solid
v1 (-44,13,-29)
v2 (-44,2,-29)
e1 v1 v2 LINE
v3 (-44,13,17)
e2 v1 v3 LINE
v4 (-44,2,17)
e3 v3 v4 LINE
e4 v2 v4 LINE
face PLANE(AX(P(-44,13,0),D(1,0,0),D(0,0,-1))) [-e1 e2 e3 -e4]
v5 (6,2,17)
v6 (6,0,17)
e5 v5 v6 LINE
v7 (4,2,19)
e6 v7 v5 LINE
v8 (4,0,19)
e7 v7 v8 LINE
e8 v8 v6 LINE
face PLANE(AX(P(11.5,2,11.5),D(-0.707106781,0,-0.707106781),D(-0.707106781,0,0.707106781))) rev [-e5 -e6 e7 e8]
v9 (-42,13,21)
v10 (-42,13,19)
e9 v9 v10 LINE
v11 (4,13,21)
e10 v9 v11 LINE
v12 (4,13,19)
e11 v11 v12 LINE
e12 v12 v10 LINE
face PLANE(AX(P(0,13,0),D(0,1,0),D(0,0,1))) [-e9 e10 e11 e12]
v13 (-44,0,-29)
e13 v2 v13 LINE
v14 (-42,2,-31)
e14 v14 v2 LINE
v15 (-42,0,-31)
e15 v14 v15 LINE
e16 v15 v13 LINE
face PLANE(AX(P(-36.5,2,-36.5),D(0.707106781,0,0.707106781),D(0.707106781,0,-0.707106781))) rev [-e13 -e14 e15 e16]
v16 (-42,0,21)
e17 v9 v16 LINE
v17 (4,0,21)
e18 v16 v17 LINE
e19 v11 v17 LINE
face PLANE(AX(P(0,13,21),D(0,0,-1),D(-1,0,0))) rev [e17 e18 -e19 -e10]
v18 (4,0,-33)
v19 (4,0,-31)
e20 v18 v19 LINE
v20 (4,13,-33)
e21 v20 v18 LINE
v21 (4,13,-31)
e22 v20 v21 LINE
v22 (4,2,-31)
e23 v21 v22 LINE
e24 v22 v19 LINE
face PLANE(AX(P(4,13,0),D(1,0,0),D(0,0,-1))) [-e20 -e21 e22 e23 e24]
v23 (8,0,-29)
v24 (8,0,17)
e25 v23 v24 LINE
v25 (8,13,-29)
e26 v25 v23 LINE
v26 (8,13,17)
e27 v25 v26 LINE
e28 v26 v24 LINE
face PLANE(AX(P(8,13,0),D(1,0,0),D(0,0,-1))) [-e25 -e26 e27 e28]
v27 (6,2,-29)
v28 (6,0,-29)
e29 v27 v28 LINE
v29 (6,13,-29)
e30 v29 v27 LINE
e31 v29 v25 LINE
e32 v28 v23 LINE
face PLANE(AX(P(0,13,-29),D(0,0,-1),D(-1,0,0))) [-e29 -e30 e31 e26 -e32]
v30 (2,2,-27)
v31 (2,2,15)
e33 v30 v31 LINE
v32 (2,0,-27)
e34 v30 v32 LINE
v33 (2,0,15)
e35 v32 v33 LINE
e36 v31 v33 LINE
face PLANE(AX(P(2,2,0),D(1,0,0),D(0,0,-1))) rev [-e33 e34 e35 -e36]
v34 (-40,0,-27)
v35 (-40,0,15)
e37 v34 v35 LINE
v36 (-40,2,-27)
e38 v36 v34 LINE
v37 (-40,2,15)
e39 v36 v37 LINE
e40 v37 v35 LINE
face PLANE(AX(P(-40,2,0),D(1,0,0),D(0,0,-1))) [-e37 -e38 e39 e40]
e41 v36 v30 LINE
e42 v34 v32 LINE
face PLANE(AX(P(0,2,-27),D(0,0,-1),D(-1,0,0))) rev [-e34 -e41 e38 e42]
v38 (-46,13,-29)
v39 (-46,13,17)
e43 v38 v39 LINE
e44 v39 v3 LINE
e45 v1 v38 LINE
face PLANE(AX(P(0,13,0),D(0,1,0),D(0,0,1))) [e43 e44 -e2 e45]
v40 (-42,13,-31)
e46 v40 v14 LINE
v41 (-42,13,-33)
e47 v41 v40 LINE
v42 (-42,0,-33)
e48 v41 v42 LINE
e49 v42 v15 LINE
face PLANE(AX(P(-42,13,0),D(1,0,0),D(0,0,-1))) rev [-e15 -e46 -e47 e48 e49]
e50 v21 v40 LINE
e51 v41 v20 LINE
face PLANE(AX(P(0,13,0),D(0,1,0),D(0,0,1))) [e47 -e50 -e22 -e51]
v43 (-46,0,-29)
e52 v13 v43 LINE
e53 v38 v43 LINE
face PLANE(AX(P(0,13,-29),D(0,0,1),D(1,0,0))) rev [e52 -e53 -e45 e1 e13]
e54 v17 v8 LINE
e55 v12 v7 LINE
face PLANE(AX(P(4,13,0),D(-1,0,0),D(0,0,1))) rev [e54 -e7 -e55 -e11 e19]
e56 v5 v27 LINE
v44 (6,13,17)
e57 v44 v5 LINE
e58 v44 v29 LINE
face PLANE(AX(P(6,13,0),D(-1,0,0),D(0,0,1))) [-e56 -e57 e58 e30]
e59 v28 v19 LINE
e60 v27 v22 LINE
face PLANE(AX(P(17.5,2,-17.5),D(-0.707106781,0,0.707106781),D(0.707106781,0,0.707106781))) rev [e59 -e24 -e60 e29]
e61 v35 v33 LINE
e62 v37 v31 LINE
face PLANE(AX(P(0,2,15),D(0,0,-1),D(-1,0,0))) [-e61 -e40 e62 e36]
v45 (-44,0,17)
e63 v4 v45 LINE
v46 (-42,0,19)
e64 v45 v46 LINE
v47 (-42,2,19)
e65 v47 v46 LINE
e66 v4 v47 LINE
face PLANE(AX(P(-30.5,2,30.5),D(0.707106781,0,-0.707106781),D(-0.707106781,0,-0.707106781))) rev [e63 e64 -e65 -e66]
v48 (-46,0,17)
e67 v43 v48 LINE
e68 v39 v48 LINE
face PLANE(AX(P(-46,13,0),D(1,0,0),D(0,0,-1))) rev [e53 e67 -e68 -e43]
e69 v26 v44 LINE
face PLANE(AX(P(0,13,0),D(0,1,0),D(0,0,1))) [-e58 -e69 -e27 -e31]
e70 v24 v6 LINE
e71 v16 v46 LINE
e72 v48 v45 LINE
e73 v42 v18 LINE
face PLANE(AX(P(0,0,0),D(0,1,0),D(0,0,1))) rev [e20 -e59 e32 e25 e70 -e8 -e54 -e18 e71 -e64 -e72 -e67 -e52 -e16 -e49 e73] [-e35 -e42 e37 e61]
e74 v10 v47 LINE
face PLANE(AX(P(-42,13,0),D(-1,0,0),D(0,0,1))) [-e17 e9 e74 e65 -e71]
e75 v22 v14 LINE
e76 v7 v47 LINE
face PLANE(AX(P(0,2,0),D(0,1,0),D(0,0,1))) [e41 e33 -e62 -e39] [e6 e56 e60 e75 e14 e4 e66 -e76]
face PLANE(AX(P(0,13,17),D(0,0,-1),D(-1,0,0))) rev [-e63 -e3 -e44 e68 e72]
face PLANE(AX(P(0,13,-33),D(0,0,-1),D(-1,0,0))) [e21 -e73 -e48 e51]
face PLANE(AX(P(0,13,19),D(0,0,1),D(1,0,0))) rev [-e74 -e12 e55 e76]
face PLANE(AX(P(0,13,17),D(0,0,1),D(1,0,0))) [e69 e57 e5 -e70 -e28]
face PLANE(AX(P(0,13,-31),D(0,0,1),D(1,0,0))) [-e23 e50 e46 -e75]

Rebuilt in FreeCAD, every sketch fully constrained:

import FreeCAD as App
import Part
import Sketcher
Q = App.Units.Quantity


def add_polygon(sketch, points):
    """Adds a closed chain of lines whose ends are joined by coincident constraints."""
    first, n = sketch.GeometryCount, len(points)
    for a, b in zip(points, points[1:] + points[:1]):
        sketch.addGeometry(Part.LineSegment(App.Vector(*a, 0), App.Vector(*b, 0)), False)
    for i in range(n):
        sketch.addConstraint(Sketcher.Constraint("Coincident", first + i, 2, first + (i + 1) % n, 1))

doc = App.newDocument("Part")
params = doc.addObject("Spreadsheet::Sheet", "Params")
for row, (alias, value) in enumerate([
    ("sketch1_width", "46 mm"),
    ("sketch1_width2", "42 mm"),
    ("pad1_length", "2 mm"),
    ("sketch2_width", "46 mm"),
    ("sketch2_width2", "2 mm"),
    ("pad2_length", "13 mm"),
], start=1):
    params.set(f"A{row}", alias)
    params.set(f"B{row}", "=" + value)
    params.setAlias(f"B{row}", alias)

body = doc.addObject("PartDesign::Body", "Body")

# Sketch on XZ plane
sketch1 = body.newObject("Sketcher::SketchObject", "Sketch")
sketch1.AttachmentSupport = (doc.getObject("XZ_Plane"), [""])
sketch1.MapMode = "FlatFace"
add_polygon(sketch1, [(-42, -31), (-44, -29), (-44, 17), (-42, 19), (4, 19), (6, 17), (6, -29), (4, -31)])  # lines 0-7
add_polygon(sketch1, [(2, 15), (-40, 15), (-40, -27), (2, -27)])  # lines 8-11
sketch1.addConstraint([
    Sketcher.Constraint("Vertical", 1),
    Sketcher.Constraint("Horizontal", 3),
    Sketcher.Constraint("Vertical", 5),
    Sketcher.Constraint("Horizontal", 7),
    Sketcher.Constraint("Horizontal", 8),
    Sketcher.Constraint("Vertical", 9),
    Sketcher.Constraint("Horizontal", 10),
    Sketcher.Constraint("Vertical", 11),
    Sketcher.Constraint("Perpendicular", 0, 2),
    Sketcher.Constraint("Perpendicular", 2, 4),
    Sketcher.Constraint("Perpendicular", 4, 6),
    Sketcher.Constraint("Horizontal", 1, 2, 4, 2),
    Sketcher.Constraint("Horizontal", 0, 2, 5, 2),
    Sketcher.Constraint("Vertical", 3, 2, 6, 2),
    Sketcher.Constraint("Vertical", 2, 2, 7, 2),
    Sketcher.Constraint("Equal", 7, 1),
    Sketcher.Constraint("Equal", 10, 9),
    Sketcher.Constraint("DistanceX", 3, 1, 3, 2, Q("46 mm")),
    Sketcher.Constraint("DistanceX", 8, 2, 8, 1, Q("42 mm")),
    Sketcher.Constraint("DistanceX", 0, 2, -1, 1, Q("44 mm")),
    Sketcher.Constraint("DistanceY", 0, 2, -1, 1, Q("29 mm")),
    Sketcher.Constraint("DistanceX", 2, 2, -1, 1, Q("42 mm")),
    Sketcher.Constraint("DistanceX", 8, 2, -1, 1, Q("40 mm")),
    Sketcher.Constraint("DistanceY", -1, 1, 8, 2, Q("15 mm")),
])
sketch1.setExpression("Constraints[29]", "Params.sketch1_width")
sketch1.setExpression("Constraints[30]", "Params.sketch1_width2")
pad1 = body.newObject("PartDesign::Pad", "Pad")
pad1.Profile = sketch1
pad1.setExpression("Length", "Params.pad1_length")
pad1.Reversed = True

# Sketch on XZ plane
sketch2 = body.newObject("Sketcher::SketchObject", "Sketch001")
sketch2.AttachmentSupport = (doc.getObject("XZ_Plane"), [""])
sketch2.MapMode = "FlatFace"
add_polygon(sketch2, [(-42, 19), (-42, 21), (4, 21), (4, 19)])  # lines 0-3
add_polygon(sketch2, [(-42, -33), (-42, -31), (4, -31), (4, -33)])  # lines 4-7
add_polygon(sketch2, [(6, -29), (6, 17), (8, 17), (8, -29)])  # lines 8-11
add_polygon(sketch2, [(-46, -29), (-46, 17), (-44, 17), (-44, -29)])  # lines 12-15
sketch2.addConstraint([
    Sketcher.Constraint("Vertical", 0),
    Sketcher.Constraint("Horizontal", 1),
    Sketcher.Constraint("Vertical", 2),
    Sketcher.Constraint("Horizontal", 3),
    Sketcher.Constraint("Vertical", 4),
    Sketcher.Constraint("Horizontal", 5),
    Sketcher.Constraint("Vertical", 6),
    Sketcher.Constraint("Horizontal", 7),
    Sketcher.Constraint("Vertical", 8),
    Sketcher.Constraint("Horizontal", 9),
    Sketcher.Constraint("Vertical", 10),
    Sketcher.Constraint("Horizontal", 11),
    Sketcher.Constraint("Vertical", 12),
    Sketcher.Constraint("Horizontal", 13),
    Sketcher.Constraint("Vertical", 14),
    Sketcher.Constraint("Horizontal", 15),
    Sketcher.Constraint("Horizontal", 9, 2, 12, 2),
    Sketcher.Constraint("Horizontal", 11, 2, 14, 2),
    Sketcher.Constraint("Vertical", 3, 2, 4, 2),
    Sketcher.Constraint("Vertical", 2, 2, 5, 2),
    Sketcher.Constraint("Equal", 11, 13),
    Sketcher.Constraint("Equal", 15, 0),
    Sketcher.Constraint("Equal", 2, 4),
    Sketcher.Constraint("Equal", 7, 8),
    Sketcher.Constraint("DistanceX", 1, 1, 1, 2, Q("46 mm")),
    Sketcher.Constraint("DistanceX", 9, 1, 9, 2, Q("2 mm")),
    Sketcher.Constraint("DistanceX", 0, 2, -1, 1, Q("42 mm")),
    Sketcher.Constraint("DistanceY", -1, 1, 0, 2, Q("21 mm")),
    Sketcher.Constraint("DistanceY", 4, 2, -1, 1, Q("31 mm")),
    Sketcher.Constraint("DistanceX", -1, 1, 8, 2, Q("6 mm")),
    Sketcher.Constraint("DistanceY", -1, 1, 8, 2, Q("17 mm")),
    Sketcher.Constraint("DistanceX", 12, 2, -1, 1, Q("46 mm")),
])
sketch2.setExpression("Constraints[40]", "Params.sketch2_width")
sketch2.setExpression("Constraints[41]", "Params.sketch2_width2")
pad2 = body.newObject("PartDesign::Pad", "Pad001")
pad2.Profile = sketch2
pad2.setExpression("Length", "Params.pad2_length")
pad2.Reversed = True

doc.recompute()
